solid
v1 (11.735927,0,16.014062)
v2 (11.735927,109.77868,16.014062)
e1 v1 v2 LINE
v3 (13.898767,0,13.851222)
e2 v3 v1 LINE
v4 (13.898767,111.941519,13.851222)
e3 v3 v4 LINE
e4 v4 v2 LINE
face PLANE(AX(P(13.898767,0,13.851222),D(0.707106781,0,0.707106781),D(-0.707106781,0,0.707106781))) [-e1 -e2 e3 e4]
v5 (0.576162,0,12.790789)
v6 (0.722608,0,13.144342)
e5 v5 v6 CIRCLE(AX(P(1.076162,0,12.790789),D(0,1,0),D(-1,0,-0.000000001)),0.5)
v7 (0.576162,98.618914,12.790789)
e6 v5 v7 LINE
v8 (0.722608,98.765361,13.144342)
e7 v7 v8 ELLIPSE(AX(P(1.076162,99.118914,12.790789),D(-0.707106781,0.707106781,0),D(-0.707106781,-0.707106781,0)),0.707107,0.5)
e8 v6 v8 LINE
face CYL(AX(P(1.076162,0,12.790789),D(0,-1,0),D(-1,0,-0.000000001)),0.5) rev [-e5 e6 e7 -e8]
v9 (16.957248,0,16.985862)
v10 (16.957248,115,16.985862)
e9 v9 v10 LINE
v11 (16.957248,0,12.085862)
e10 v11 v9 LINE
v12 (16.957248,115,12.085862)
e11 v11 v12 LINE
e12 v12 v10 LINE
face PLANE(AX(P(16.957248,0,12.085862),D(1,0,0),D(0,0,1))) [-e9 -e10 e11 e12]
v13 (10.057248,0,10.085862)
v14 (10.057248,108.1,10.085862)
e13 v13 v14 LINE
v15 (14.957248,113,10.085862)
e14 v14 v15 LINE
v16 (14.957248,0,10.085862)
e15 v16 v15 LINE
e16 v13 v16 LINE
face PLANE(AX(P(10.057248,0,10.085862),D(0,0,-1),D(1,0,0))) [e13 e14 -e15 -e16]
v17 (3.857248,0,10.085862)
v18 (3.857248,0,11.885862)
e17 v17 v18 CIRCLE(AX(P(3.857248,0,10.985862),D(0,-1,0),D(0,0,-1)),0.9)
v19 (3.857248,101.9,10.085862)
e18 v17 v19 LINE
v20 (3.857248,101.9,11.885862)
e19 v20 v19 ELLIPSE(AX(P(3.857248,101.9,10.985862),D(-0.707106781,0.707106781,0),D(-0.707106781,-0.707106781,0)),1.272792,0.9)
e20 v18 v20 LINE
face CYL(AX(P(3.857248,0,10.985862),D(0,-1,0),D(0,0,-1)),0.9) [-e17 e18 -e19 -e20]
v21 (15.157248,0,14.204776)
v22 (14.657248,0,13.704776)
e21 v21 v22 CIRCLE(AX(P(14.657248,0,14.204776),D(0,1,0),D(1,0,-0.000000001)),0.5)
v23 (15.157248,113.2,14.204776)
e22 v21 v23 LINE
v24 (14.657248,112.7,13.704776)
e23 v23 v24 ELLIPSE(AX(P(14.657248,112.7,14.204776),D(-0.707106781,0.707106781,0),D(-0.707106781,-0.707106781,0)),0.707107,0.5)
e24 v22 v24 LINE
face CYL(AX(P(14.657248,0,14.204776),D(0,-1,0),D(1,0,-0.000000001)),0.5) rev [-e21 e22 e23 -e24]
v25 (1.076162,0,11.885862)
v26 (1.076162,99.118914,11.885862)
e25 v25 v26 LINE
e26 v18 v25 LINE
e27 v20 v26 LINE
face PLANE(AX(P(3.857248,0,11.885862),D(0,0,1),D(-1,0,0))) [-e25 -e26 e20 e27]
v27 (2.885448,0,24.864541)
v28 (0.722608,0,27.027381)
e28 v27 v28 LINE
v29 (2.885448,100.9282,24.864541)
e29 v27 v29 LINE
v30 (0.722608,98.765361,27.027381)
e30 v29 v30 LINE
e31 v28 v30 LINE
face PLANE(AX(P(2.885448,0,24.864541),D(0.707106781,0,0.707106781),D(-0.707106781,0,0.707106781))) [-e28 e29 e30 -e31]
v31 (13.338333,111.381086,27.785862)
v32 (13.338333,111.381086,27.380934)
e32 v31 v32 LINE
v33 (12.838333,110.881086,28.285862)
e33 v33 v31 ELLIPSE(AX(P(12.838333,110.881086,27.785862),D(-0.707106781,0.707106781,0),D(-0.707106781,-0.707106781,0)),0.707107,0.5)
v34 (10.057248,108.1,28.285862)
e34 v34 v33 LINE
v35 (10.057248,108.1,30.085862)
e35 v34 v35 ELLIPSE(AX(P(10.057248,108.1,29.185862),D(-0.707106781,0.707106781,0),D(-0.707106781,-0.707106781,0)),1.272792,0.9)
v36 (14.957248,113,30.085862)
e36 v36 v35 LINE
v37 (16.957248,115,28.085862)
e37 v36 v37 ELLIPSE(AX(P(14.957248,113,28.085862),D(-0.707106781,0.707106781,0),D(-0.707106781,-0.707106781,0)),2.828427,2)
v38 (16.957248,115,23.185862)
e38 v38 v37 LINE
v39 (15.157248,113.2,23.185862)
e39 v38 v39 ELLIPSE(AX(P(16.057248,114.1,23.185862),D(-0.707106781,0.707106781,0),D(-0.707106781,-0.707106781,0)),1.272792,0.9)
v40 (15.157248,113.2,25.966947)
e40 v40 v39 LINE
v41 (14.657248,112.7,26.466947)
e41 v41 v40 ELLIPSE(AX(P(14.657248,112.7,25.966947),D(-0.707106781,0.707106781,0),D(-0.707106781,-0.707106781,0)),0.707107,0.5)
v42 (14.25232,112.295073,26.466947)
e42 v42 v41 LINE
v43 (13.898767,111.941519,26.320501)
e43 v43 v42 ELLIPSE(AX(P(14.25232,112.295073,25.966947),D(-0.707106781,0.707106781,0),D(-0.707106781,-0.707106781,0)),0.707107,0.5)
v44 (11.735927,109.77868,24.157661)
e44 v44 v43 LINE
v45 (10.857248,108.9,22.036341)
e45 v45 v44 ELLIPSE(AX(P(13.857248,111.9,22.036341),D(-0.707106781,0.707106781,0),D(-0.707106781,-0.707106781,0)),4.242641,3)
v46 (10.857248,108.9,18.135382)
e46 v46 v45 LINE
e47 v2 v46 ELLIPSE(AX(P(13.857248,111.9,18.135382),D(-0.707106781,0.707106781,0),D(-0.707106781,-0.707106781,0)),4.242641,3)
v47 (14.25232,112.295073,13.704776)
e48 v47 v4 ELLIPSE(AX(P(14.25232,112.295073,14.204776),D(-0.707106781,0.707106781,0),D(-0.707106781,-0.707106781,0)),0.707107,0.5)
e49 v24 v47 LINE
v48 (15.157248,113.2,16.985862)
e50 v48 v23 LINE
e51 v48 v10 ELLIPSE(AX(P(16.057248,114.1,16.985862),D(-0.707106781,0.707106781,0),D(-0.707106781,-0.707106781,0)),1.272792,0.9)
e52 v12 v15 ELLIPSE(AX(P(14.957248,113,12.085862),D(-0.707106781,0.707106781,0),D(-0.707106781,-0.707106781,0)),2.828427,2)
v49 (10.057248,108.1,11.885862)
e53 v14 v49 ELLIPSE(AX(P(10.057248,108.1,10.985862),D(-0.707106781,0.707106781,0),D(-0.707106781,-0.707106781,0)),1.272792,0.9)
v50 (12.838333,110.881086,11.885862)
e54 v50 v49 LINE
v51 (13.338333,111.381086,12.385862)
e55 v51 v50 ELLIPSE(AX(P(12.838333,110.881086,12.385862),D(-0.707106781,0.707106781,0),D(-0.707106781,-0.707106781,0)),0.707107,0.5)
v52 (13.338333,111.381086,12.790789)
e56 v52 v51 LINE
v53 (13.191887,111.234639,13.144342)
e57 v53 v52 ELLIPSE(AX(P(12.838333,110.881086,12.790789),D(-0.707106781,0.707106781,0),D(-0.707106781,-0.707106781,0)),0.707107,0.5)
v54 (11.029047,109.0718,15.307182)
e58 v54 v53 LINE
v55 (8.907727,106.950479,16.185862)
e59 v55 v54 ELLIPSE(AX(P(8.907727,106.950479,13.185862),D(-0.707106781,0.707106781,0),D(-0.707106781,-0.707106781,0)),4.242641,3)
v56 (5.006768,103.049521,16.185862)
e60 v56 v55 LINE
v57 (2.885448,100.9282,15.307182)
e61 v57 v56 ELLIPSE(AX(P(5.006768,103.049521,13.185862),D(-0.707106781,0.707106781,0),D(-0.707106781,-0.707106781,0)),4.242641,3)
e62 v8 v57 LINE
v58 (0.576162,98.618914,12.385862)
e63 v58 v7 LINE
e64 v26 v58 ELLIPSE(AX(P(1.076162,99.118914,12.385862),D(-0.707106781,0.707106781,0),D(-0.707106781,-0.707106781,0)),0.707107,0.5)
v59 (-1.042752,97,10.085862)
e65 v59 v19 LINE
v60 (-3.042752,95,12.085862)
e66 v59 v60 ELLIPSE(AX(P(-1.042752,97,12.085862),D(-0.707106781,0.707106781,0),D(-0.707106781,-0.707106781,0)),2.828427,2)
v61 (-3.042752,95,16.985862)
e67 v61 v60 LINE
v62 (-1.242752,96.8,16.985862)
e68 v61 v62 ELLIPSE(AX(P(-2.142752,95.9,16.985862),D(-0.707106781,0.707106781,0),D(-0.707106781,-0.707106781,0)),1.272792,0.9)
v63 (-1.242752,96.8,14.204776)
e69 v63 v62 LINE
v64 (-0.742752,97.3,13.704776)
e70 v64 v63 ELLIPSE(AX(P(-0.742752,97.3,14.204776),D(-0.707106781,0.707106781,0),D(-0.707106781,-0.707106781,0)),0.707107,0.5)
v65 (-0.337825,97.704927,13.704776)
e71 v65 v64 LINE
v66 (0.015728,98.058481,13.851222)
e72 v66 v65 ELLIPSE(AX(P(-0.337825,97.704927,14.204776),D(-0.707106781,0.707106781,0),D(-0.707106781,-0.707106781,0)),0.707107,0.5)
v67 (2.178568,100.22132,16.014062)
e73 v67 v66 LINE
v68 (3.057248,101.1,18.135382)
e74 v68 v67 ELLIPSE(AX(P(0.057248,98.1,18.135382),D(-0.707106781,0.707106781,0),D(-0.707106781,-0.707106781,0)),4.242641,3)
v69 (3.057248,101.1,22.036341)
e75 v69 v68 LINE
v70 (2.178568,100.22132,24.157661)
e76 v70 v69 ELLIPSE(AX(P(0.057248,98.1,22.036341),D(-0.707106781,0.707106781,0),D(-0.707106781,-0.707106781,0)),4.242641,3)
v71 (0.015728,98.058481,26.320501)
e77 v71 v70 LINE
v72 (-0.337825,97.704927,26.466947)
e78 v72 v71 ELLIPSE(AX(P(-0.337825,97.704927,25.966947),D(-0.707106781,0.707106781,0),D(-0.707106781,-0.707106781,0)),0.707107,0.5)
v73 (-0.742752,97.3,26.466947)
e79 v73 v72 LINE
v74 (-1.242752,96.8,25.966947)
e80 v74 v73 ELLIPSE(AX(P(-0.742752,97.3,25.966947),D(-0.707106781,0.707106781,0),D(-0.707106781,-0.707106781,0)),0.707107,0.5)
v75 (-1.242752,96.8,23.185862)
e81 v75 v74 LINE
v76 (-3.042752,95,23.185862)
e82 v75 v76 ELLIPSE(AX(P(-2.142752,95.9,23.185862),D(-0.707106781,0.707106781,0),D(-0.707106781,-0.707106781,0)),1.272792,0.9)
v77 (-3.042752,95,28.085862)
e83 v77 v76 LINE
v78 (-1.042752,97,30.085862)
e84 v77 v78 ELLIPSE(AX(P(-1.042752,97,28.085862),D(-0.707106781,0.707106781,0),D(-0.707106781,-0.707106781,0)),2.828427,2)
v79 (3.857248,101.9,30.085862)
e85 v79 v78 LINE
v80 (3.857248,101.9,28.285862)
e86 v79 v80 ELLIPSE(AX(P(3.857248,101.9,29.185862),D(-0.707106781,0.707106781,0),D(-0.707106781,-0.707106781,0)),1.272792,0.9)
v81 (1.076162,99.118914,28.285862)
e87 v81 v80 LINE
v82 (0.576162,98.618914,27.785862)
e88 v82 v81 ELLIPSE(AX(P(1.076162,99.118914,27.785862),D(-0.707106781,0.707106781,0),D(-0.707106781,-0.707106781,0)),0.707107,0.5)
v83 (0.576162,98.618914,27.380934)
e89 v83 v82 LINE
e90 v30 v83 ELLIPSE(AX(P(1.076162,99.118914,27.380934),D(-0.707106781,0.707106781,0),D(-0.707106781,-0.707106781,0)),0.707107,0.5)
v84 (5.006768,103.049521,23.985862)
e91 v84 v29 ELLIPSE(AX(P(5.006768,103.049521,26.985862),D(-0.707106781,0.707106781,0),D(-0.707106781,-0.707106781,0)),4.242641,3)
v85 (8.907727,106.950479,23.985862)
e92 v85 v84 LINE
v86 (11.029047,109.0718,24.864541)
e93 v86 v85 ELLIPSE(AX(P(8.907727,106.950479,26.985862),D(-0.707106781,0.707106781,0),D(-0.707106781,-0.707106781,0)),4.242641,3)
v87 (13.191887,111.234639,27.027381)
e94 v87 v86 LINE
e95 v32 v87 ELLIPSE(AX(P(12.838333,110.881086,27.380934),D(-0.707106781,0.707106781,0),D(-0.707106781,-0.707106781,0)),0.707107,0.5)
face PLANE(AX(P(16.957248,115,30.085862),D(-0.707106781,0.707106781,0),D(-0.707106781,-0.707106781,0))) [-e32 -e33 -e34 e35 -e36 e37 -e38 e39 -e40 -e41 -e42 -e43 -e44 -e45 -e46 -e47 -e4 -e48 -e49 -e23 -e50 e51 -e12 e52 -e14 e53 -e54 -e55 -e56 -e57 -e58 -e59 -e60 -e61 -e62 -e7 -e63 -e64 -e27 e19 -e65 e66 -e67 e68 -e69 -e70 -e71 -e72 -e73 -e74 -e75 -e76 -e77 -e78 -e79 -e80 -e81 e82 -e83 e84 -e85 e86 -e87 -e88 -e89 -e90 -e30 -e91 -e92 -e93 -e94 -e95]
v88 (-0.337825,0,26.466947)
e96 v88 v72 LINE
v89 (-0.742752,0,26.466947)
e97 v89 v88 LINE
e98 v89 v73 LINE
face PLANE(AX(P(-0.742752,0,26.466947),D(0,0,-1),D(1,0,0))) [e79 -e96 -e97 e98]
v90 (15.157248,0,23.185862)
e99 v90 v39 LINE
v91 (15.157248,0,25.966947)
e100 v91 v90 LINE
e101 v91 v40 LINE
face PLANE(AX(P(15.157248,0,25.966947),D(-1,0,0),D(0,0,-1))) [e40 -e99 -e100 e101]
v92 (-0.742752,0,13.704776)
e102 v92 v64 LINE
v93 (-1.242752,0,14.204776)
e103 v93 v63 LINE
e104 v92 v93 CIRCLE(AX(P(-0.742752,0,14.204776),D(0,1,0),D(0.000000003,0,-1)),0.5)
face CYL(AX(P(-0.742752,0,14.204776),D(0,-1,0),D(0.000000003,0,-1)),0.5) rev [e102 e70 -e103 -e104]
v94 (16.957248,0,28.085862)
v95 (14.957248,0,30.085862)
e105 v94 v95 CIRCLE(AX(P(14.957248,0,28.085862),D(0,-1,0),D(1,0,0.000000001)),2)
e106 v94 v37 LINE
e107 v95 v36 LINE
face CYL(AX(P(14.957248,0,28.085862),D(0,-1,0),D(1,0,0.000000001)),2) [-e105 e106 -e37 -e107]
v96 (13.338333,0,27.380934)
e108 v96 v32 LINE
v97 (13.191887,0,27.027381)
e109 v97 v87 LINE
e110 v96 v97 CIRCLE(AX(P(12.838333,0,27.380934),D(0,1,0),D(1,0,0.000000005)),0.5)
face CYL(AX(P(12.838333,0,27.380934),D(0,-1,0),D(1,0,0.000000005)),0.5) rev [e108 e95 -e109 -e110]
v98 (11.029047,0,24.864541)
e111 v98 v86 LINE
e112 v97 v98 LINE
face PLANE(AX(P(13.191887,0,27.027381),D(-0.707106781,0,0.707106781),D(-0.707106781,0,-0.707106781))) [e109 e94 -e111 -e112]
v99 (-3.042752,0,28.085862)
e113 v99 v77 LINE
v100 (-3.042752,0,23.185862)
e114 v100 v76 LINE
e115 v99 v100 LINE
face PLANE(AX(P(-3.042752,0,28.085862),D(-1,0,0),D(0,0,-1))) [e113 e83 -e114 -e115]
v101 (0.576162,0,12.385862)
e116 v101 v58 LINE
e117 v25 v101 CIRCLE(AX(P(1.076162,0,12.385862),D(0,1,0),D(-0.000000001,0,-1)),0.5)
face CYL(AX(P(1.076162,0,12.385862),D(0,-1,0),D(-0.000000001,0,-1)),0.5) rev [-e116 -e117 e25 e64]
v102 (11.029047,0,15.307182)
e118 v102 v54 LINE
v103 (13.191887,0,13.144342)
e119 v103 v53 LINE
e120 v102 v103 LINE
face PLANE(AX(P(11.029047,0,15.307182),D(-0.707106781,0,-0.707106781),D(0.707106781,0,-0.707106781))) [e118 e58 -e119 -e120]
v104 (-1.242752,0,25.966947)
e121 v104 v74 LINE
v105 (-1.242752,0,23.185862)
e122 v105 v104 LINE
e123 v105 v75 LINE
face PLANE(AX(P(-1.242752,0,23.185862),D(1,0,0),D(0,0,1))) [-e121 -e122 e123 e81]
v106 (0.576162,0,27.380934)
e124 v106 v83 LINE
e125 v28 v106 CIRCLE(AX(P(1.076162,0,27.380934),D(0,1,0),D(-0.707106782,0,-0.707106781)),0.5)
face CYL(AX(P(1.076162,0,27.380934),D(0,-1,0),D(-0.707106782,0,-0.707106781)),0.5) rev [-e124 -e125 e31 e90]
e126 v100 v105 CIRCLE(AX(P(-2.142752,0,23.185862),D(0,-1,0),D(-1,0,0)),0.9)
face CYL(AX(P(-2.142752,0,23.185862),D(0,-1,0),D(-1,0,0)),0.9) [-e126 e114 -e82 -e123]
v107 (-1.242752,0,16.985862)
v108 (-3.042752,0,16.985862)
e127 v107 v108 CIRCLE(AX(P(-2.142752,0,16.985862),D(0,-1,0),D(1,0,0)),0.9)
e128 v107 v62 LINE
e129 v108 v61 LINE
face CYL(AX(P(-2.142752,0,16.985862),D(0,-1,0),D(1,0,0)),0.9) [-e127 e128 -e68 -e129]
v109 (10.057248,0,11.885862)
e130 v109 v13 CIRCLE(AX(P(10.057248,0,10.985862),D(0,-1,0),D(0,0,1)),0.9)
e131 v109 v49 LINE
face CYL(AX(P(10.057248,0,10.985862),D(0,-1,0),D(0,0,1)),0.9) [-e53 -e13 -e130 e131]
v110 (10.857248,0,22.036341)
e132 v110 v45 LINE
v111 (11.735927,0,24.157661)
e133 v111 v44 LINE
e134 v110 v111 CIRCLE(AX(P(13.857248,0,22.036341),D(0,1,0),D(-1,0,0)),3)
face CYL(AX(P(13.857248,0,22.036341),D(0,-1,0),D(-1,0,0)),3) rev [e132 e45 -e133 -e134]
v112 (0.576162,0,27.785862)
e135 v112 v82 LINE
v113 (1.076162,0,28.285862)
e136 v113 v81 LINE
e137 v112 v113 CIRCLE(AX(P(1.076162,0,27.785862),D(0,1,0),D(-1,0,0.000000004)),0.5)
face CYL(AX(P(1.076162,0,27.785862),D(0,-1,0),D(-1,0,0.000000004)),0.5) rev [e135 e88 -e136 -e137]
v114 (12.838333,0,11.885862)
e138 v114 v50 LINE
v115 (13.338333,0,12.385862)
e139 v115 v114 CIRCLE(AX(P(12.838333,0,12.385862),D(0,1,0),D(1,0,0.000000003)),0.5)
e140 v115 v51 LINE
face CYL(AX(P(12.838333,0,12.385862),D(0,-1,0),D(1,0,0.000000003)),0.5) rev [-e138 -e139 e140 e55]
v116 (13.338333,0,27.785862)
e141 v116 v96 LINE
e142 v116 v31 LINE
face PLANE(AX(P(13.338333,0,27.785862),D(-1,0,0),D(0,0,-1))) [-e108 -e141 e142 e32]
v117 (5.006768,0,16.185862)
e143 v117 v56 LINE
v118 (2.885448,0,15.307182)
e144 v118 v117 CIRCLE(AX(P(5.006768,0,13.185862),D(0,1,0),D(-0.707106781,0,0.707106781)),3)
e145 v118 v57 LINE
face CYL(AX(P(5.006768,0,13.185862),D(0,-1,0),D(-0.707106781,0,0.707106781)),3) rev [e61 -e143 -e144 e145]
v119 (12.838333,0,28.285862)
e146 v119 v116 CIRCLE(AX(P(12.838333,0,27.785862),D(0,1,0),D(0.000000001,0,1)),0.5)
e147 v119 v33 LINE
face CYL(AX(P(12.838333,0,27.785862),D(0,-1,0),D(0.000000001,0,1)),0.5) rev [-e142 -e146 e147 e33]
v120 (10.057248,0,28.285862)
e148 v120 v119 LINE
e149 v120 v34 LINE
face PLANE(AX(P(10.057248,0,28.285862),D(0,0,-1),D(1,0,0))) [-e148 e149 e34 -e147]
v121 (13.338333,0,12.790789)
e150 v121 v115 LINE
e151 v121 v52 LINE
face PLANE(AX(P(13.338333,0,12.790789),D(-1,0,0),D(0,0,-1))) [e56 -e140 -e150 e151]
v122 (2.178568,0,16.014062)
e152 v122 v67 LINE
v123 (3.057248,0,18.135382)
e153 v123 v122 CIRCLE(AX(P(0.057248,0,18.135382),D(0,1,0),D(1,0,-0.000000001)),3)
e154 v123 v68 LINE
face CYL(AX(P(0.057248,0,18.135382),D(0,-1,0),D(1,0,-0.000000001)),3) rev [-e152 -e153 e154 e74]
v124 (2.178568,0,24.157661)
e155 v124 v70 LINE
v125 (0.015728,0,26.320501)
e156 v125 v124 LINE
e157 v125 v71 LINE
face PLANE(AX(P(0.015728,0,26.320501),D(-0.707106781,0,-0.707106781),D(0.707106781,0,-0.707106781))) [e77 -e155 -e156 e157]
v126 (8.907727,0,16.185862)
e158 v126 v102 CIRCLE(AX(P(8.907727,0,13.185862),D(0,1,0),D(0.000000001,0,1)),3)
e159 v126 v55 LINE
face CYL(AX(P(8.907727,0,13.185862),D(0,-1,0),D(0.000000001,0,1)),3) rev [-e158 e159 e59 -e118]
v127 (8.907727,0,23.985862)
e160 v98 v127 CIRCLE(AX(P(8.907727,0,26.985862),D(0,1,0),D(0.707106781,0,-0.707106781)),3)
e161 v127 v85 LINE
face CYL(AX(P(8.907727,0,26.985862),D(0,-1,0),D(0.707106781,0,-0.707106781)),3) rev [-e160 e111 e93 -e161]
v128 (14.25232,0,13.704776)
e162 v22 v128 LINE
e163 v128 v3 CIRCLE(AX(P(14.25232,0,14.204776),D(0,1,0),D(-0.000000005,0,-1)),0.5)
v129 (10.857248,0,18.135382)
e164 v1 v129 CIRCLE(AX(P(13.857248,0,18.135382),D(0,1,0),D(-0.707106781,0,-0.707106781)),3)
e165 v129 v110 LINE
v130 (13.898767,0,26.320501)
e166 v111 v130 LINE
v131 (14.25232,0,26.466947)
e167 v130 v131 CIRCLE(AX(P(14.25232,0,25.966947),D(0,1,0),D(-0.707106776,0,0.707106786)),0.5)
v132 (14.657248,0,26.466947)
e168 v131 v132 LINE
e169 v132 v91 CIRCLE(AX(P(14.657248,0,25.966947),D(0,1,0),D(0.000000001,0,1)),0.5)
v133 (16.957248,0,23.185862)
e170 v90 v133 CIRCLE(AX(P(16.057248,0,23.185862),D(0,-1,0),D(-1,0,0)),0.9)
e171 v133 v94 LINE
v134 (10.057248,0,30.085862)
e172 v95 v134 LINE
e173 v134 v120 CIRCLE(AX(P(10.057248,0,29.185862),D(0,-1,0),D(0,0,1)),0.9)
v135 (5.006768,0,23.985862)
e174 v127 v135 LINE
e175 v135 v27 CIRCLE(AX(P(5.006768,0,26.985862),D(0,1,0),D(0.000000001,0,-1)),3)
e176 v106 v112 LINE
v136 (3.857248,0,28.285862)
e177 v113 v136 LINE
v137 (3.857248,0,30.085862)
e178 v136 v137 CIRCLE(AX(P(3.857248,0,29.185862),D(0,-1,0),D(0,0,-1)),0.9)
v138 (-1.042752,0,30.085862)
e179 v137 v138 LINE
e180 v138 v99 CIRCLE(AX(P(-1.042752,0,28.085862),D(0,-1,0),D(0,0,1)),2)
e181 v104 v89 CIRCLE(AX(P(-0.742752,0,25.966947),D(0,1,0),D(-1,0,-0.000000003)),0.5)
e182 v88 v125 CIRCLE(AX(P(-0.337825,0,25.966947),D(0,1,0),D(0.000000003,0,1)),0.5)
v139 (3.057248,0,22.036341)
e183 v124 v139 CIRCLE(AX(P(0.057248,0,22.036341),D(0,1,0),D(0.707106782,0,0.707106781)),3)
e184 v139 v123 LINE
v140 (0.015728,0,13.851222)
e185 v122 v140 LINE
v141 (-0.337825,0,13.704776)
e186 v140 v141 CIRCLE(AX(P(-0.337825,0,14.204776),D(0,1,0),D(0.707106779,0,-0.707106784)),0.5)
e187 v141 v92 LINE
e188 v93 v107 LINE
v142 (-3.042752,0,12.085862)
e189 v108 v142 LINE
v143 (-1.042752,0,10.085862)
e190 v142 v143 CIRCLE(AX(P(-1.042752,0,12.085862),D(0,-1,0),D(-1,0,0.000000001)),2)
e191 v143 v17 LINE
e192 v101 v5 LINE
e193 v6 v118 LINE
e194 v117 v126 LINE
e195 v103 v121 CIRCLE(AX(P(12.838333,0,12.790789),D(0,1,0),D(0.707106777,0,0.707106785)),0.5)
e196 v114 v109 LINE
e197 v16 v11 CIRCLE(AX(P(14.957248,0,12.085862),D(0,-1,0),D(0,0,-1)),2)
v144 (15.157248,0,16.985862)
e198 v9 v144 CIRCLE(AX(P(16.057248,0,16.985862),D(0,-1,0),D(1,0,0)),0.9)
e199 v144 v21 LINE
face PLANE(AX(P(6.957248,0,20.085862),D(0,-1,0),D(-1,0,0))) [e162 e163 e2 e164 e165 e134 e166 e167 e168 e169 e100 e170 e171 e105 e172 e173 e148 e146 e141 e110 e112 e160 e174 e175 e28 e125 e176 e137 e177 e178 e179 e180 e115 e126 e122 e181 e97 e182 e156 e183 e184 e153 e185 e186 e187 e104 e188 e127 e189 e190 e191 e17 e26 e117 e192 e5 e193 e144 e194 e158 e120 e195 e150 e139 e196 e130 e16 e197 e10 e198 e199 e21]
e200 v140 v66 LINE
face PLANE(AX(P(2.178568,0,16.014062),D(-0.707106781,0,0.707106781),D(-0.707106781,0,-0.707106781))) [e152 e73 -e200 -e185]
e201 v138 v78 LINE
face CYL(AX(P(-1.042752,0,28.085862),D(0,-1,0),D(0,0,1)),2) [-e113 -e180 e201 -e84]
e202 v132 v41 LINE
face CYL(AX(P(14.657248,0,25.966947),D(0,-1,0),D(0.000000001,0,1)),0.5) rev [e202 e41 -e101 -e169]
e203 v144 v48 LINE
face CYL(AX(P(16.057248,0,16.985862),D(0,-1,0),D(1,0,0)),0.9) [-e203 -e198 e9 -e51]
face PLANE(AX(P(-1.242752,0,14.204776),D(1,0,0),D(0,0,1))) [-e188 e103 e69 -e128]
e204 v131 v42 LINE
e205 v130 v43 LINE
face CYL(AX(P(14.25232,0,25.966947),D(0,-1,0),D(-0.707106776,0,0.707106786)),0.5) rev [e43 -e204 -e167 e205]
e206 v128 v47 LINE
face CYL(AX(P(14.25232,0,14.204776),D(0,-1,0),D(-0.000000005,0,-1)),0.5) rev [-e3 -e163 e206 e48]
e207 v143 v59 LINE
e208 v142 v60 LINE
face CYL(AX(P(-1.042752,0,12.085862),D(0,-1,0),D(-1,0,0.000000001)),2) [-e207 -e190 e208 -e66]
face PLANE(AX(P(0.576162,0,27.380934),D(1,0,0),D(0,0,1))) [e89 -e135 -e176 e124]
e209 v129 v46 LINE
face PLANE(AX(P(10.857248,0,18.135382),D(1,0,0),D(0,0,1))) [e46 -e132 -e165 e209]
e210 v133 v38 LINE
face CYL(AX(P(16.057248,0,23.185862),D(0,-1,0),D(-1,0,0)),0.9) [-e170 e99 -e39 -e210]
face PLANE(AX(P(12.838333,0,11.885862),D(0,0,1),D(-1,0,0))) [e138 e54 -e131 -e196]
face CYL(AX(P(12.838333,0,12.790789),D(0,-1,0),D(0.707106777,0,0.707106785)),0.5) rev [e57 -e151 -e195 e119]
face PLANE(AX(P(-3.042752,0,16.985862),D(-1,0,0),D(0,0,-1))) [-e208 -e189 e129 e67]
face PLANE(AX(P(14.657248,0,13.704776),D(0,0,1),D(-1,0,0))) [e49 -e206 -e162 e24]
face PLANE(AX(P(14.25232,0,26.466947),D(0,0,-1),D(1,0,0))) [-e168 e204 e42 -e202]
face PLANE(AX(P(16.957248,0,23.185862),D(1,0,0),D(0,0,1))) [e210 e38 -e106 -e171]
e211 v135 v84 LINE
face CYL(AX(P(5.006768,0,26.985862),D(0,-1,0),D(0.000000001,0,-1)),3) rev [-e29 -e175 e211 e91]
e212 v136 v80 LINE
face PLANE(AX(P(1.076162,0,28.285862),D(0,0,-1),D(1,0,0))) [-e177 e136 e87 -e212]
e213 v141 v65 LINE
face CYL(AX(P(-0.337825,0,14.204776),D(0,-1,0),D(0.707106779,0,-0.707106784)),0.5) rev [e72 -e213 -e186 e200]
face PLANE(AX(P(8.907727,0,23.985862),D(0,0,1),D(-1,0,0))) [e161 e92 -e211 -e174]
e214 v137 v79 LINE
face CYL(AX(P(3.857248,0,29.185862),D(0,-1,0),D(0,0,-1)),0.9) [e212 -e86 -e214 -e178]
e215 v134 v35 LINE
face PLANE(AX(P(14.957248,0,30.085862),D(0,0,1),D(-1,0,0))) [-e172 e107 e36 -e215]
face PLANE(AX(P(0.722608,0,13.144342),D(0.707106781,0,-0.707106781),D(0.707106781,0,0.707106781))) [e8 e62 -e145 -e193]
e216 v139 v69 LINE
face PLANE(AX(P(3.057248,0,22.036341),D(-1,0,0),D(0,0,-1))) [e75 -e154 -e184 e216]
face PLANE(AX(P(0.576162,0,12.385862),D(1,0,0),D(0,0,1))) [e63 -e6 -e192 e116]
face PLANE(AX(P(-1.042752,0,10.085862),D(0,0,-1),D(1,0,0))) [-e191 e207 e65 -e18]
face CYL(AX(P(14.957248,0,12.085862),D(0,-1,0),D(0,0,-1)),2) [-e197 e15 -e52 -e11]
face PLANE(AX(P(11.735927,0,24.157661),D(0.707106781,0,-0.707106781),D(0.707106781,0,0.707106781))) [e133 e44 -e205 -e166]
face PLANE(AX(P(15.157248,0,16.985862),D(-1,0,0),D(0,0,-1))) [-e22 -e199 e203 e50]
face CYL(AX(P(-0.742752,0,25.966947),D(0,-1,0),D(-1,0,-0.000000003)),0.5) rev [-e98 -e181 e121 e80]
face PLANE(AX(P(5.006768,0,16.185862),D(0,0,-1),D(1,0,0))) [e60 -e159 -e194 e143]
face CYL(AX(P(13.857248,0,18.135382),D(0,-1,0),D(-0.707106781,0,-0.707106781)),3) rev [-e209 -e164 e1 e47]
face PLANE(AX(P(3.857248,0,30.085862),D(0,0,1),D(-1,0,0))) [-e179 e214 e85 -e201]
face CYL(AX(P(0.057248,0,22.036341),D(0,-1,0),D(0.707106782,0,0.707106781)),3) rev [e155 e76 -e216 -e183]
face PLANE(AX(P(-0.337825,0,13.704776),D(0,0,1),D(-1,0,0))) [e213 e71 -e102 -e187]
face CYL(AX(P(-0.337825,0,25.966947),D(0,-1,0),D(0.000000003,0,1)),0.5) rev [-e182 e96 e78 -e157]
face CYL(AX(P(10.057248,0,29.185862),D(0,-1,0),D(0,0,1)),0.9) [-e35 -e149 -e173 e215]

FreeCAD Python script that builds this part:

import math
import FreeCAD as App
import Part
import Sketcher
from FreeCAD import Vector
Q = App.Units.Quantity

doc = App.newDocument("Part")
body = doc.addObject("PartDesign::Body", "Body")

# Sketch on XZ plane
sketch1 = body.newObject("Sketcher::SketchObject", "Sketch")
sketch1.AttachmentSupport = (doc.getObject("XZ_Plane"), [""])
sketch1.MapMode = "FlatFace"
sketch1.addGeometry(Part.LineSegment(Vector(3.857248, 10.085862, 0), Vector(-1.042752, 10.085862, 0)), False)
sketch1.addGeometry(Part.ArcOfCircle(Part.Circle(Vector(-1.042752, 12.085862, 0), Vector(0, 0, 1), 2), math.radians(180), math.radians(270)), False)
sketch1.addGeometry(Part.LineSegment(Vector(-3.042752, 12.085862, 0), Vector(-3.042752, 16.985862, 0)), False)
sketch1.addGeometry(Part.ArcOfCircle(Part.Circle(Vector(-2.142752, 16.985862, 0), Vector(0, 0, 1), 0.9), math.radians(0), math.radians(180)), False)
sketch1.addGeometry(Part.LineSegment(Vector(-1.242752, 16.985862, 0), Vector(-1.242752, 14.204776, 0)), False)
sketch1.addGeometry(Part.ArcOfCircle(Part.Circle(Vector(-0.742752, 14.204776, 0), Vector(0, 0, 1), 0.5), math.radians(180), math.radians(270)), False)
sketch1.addGeometry(Part.LineSegment(Vector(-0.742752, 13.704776, 0), Vector(-0.337825, 13.704776, 0)), False)
sketch1.addGeometry(Part.ArcOfCircle(Part.Circle(Vector(-0.337825, 14.204776, 0), Vector(0, 0, 1), 0.5), math.radians(-90), math.radians(-45)), False)
sketch1.addGeometry(Part.LineSegment(Vector(0.015728, 13.851222, 0), Vector(2.178568, 16.014062, 0)), False)
sketch1.addGeometry(Part.ArcOfCircle(Part.Circle(Vector(0.057248, 18.135382, 0), Vector(0, 0, 1), 3), math.radians(-45), math.radians(0)), False)
sketch1.addGeometry(Part.LineSegment(Vector(3.057248, 18.135382, 0), Vector(3.057248, 22.036341, 0)), False)
sketch1.addGeometry(Part.ArcOfCircle(Part.Circle(Vector(0.057248, 22.036341, 0), Vector(0, 0, 1), 3), math.radians(0), math.radians(45)), False)
sketch1.addGeometry(Part.LineSegment(Vector(2.178568, 24.157661, 0), Vector(0.015728, 26.320501, 0)), False)
sketch1.addGeometry(Part.ArcOfCircle(Part.Circle(Vector(-0.337825, 25.966947, 0), Vector(0, 0, 1), 0.5), math.radians(45), math.radians(90)), False)
sketch1.addGeometry(Part.LineSegment(Vector(-0.337825, 26.466947, 0), Vector(-0.742752, 26.466947, 0)), False)
sketch1.addGeometry(Part.ArcOfCircle(Part.Circle(Vector(-0.742752, 25.966947, 0), Vector(0, 0, 1), 0.5), math.radians(90), math.radians(180)), False)
sketch1.addGeometry(Part.LineSegment(Vector(-1.242752, 25.966947, 0), Vector(-1.242752, 23.185862, 0)), False)
sketch1.addGeometry(Part.ArcOfCircle(Part.Circle(Vector(-2.142752, 23.185862, 0), Vector(0, 0, 1), 0.9), math.radians(180), math.radians(360)), False)
sketch1.addGeometry(Part.LineSegment(Vector(-3.042752, 23.185862, 0), Vector(-3.042752, 28.085862, 0)), False)
sketch1.addGeometry(Part.ArcOfCircle(Part.Circle(Vector(-1.042752, 28.085862, 0), Vector(0, 0, 1), 2), math.radians(90), math.radians(180)), False)
sketch1.addGeometry(Part.LineSegment(Vector(-1.042752, 30.085862, 0), Vector(3.857248, 30.085862, 0)), False)
sketch1.addGeometry(Part.ArcOfCircle(Part.Circle(Vector(3.857248, 29.185862, 0), Vector(0, 0, 1), 0.9), math.radians(-90), math.radians(90)), False)
sketch1.addGeometry(Part.LineSegment(Vector(3.857248, 28.285862, 0), Vector(1.076162, 28.285862, 0)), False)
sketch1.addGeometry(Part.ArcOfCircle(Part.Circle(Vector(1.076162, 27.785862, 0), Vector(0, 0, 1), 0.5), math.radians(90), math.radians(180)), False)
sketch1.addGeometry(Part.LineSegment(Vector(0.576162, 27.785862, 0), Vector(0.576162, 27.380934, 0)), False)
sketch1.addGeometry(Part.ArcOfCircle(Part.Circle(Vector(1.076162, 27.380934, 0), Vector(0, 0, 1), 0.5), math.radians(-180), math.radians(-135)), False)
sketch1.addGeometry(Part.LineSegment(Vector(0.722608, 27.027381, 0), Vector(2.885448, 24.864541, 0)), False)
sketch1.addGeometry(Part.ArcOfCircle(Part.Circle(Vector(5.006768, 26.985862, 0), Vector(0, 0, 1), 3), math.radians(-135), math.radians(-90)), False)
sketch1.addGeometry(Part.LineSegment(Vector(5.006768, 23.985862, 0), Vector(8.907727, 23.985862, 0)), False)
sketch1.addGeometry(Part.ArcOfCircle(Part.Circle(Vector(8.907727, 26.985862, 0), Vector(0, 0, 1), 3), math.radians(-90), math.radians(-45)), False)
sketch1.addGeometry(Part.LineSegment(Vector(11.029047, 24.864541, 0), Vector(13.191887, 27.027381, 0)), False)
sketch1.addGeometry(Part.ArcOfCircle(Part.Circle(Vector(12.838333, 27.380934, 0), Vector(0, 0, 1), 0.5), math.radians(-45), math.radians(0)), False)
sketch1.addGeometry(Part.LineSegment(Vector(13.338333, 27.380934, 0), Vector(13.338333, 27.785862, 0)), False)
sketch1.addGeometry(Part.ArcOfCircle(Part.Circle(Vector(12.838333, 27.785862, 0), Vector(0, 0, 1), 0.5), math.radians(0), math.radians(90)), False)
sketch1.addGeometry(Part.LineSegment(Vector(12.838333, 28.285862, 0), Vector(10.057248, 28.285862, 0)), False)
sketch1.addGeometry(Part.ArcOfCircle(Part.Circle(Vector(10.057248, 29.185862, 0), Vector(0, 0, 1), 0.9), math.radians(90), math.radians(270)), False)
sketch1.addGeometry(Part.LineSegment(Vector(10.057248, 30.085862, 0), Vector(14.957248, 30.085862, 0)), False)
sketch1.addGeometry(Part.ArcOfCircle(Part.Circle(Vector(14.957248, 28.085862, 0), Vector(0, 0, 1), 2), math.radians(0), math.radians(90)), False)
sketch1.addGeometry(Part.LineSegment(Vector(16.957248, 28.085862, 0), Vector(16.957248, 23.185862, 0)), False)
sketch1.addGeometry(Part.ArcOfCircle(Part.Circle(Vector(16.057248, 23.185862, 0), Vector(0, 0, 1), 0.9), math.radians(180), math.radians(360)), False)
sketch1.addGeometry(Part.LineSegment(Vector(15.157248, 23.185862, 0), Vector(15.157248, 25.966947, 0)), False)
sketch1.addGeometry(Part.ArcOfCircle(Part.Circle(Vector(14.657248, 25.966947, 0), Vector(0, 0, 1), 0.5), math.radians(0), math.radians(90)), False)
sketch1.addGeometry(Part.LineSegment(Vector(14.657248, 26.466947, 0), Vector(14.25232, 26.466947, 0)), False)
sketch1.addGeometry(Part.ArcOfCircle(Part.Circle(Vector(14.25232, 25.966947, 0), Vector(0, 0, 1), 0.5), math.radians(90), math.radians(135)), False)
sketch1.addGeometry(Part.LineSegment(Vector(13.898767, 26.320501, 0), Vector(11.735927, 24.157661, 0)), False)
sketch1.addGeometry(Part.ArcOfCircle(Part.Circle(Vector(13.857248, 22.036341, 0), Vector(0, 0, 1), 3), math.radians(135), math.radians(180)), False)
sketch1.addGeometry(Part.LineSegment(Vector(10.857248, 22.036341, 0), Vector(10.857248, 18.135382, 0)), False)
sketch1.addGeometry(Part.ArcOfCircle(Part.Circle(Vector(13.857248, 18.135382, 0), Vector(0, 0, 1), 3), math.radians(180), math.radians(225)), False)
sketch1.addGeometry(Part.LineSegment(Vector(11.735927, 16.014062, 0), Vector(13.898767, 13.851222, 0)), False)
sketch1.addGeometry(Part.ArcOfCircle(Part.Circle(Vector(14.25232, 14.204776, 0), Vector(0, 0, 1), 0.5), math.radians(-135), math.radians(-90)), False)
sketch1.addGeometry(Part.LineSegment(Vector(14.25232, 13.704776, 0), Vector(14.657248, 13.704776, 0)), False)
sketch1.addGeometry(Part.ArcOfCircle(Part.Circle(Vector(14.657248, 14.204776, 0), Vector(0, 0, 1), 0.5), math.radians(-90), math.radians(0)), False)
sketch1.addGeometry(Part.LineSegment(Vector(15.157248, 14.204776, 0), Vector(15.157248, 16.985862, 0)), False)
sketch1.addGeometry(Part.ArcOfCircle(Part.Circle(Vector(16.057248, 16.985862, 0), Vector(0, 0, 1), 0.9), math.radians(0), math.radians(180)), False)
sketch1.addGeometry(Part.LineSegment(Vector(16.957248, 16.985862, 0), Vector(16.957248, 12.085862, 0)), False)
sketch1.addGeometry(Part.ArcOfCircle(Part.Circle(Vector(14.957248, 12.085862, 0), Vector(0, 0, 1), 2), math.radians(-90), math.radians(0)), False)
sketch1.addGeometry(Part.LineSegment(Vector(14.957248, 10.085862, 0), Vector(10.057248, 10.085862, 0)), False)
sketch1.addGeometry(Part.ArcOfCircle(Part.Circle(Vector(10.057248, 10.985862, 0), Vector(0, 0, 1), 0.9), math.radians(90), math.radians(270)), False)
sketch1.addGeometry(Part.LineSegment(Vector(10.057248, 11.885862, 0), Vector(12.838333, 11.885862, 0)), False)
sketch1.addGeometry(Part.ArcOfCircle(Part.Circle(Vector(12.838333, 12.385862, 0), Vector(0, 0, 1), 0.5), math.radians(-90), math.radians(0)), False)
sketch1.addGeometry(Part.LineSegment(Vector(13.338333, 12.385862, 0), Vector(13.338333, 12.790789, 0)), False)
sketch1.addGeometry(Part.ArcOfCircle(Part.Circle(Vector(12.838333, 12.790789, 0), Vector(0, 0, 1), 0.5), math.radians(0), math.radians(45)), False)
sketch1.addGeometry(Part.LineSegment(Vector(13.191887, 13.144342, 0), Vector(11.029047, 15.307182, 0)), False)
sketch1.addGeometry(Part.ArcOfCircle(Part.Circle(Vector(8.907727, 13.185862, 0), Vector(0, 0, 1), 3), math.radians(45), math.radians(90)), False)
sketch1.addGeometry(Part.LineSegment(Vector(8.907727, 16.185862, 0), Vector(5.006768, 16.185862, 0)), False)
sketch1.addGeometry(Part.ArcOfCircle(Part.Circle(Vector(5.006768, 13.185862, 0), Vector(0, 0, 1), 3), math.radians(90), math.radians(135)), False)
sketch1.addGeometry(Part.LineSegment(Vector(2.885448, 15.307182, 0), Vector(0.722608, 13.144342, 0)), False)
sketch1.addGeometry(Part.ArcOfCircle(Part.Circle(Vector(1.076162, 12.790789, 0), Vector(0, 0, 1), 0.5), math.radians(135), math.radians(180)), False)
sketch1.addGeometry(Part.LineSegment(Vector(0.576162, 12.790789, 0), Vector(0.576162, 12.385862, 0)), False)
sketch1.addGeometry(Part.ArcOfCircle(Part.Circle(Vector(1.076162, 12.385862, 0), Vector(0, 0, 1), 0.5), math.radians(180), math.radians(270)), False)
sketch1.addGeometry(Part.LineSegment(Vector(1.076162, 11.885862, 0), Vector(3.857248, 11.885862, 0)), False)
sketch1.addGeometry(Part.ArcOfCircle(Part.Circle(Vector(3.857248, 10.985862, 0), Vector(0, 0, 1), 0.9), math.radians(-90), math.radians(90)), False)
sketch1.addConstraint(Sketcher.Constraint("Tangent", 0, 2, 1, 2))
sketch1.addConstraint(Sketcher.Constraint("Tangent", 1, 1, 2, 1))
sketch1.addConstraint(Sketcher.Constraint("Tangent", 2, 2, 3, 2))
sketch1.addConstraint(Sketcher.Constraint("Tangent", 3, 1, 4, 1))
sketch1.addConstraint(Sketcher.Constraint("Tangent", 4, 2, 5, 1))
sketch1.addConstraint(Sketcher.Constraint("Tangent", 5, 2, 6, 1))
sketch1.addConstraint(Sketcher.Constraint("Tangent", 6, 2, 7, 1))
sketch1.addConstraint(Sketcher.Constraint("Tangent", 7, 2, 8, 1))
sketch1.addConstraint(Sketcher.Constraint("Tangent", 8, 2, 9, 1))
sketch1.addConstraint(Sketcher.Constraint("Tangent", 9, 2, 10, 1))
sketch1.addConstraint(Sketcher.Constraint("Tangent", 10, 2, 11, 1))
sketch1.addConstraint(Sketcher.Constraint("Tangent", 11, 2, 12, 1))
sketch1.addConstraint(Sketcher.Constraint("Tangent", 12, 2, 13, 1))
sketch1.addConstraint(Sketcher.Constraint("Tangent", 13, 2, 14, 1))
sketch1.addConstraint(Sketcher.Constraint("Tangent", 14, 2, 15, 1))
sketch1.addConstraint(Sketcher.Constraint("Tangent", 15, 2, 16, 1))
sketch1.addConstraint(Sketcher.Constraint("Tangent", 16, 2, 17, 2))
sketch1.addConstraint(Sketcher.Constraint("Tangent", 17, 1, 18, 1))
sketch1.addConstraint(Sketcher.Constraint("Tangent", 18, 2, 19, 2))
sketch1.addConstraint(Sketcher.Constraint("Tangent", 19, 1, 20, 1))
sketch1.addConstraint(Sketcher.Constraint("Tangent", 20, 2, 21, 2))
sketch1.addConstraint(Sketcher.Constraint("Tangent", 21, 1, 22, 1))
sketch1.addConstraint(Sketcher.Constraint("Tangent", 22, 2, 23, 1))
sketch1.addConstraint(Sketcher.Constraint("Tangent", 23, 2, 24, 1))
sketch1.addConstraint(Sketcher.Constraint("Tangent", 24, 2, 25, 1))
sketch1.addConstraint(Sketcher.Constraint("Tangent", 25, 2, 26, 1))
sketch1.addConstraint(Sketcher.Constraint("Tangent", 26, 2, 27, 1))
sketch1.addConstraint(Sketcher.Constraint("Tangent", 27, 2, 28, 1))
sketch1.addConstraint(Sketcher.Constraint("Tangent", 28, 2, 29, 1))
sketch1.addConstraint(Sketcher.Constraint("Tangent", 29, 2, 30, 1))
sketch1.addConstraint(Sketcher.Constraint("Tangent", 30, 2, 31, 1))
sketch1.addConstraint(Sketcher.Constraint("Tangent", 31, 2, 32, 1))
sketch1.addConstraint(Sketcher.Constraint("Tangent", 32, 2, 33, 1))
sketch1.addConstraint(Sketcher.Constraint("Tangent", 33, 2, 34, 1))
sketch1.addConstraint(Sketcher.Constraint("Tangent", 34, 2, 35, 2))
sketch1.addConstraint(Sketcher.Constraint("Tangent", 35, 1, 36, 1))
sketch1.addConstraint(Sketcher.Constraint("Tangent", 36, 2, 37, 2))
sketch1.addConstraint(Sketcher.Constraint("Tangent", 37, 1, 38, 1))
sketch1.addConstraint(Sketcher.Constraint("Tangent", 38, 2, 39, 2))
sketch1.addConstraint(Sketcher.Constraint("Tangent", 39, 1, 40, 1))
sketch1.addConstraint(Sketcher.Constraint("Tangent", 40, 2, 41, 1))
sketch1.addConstraint(Sketcher.Constraint("Tangent", 41, 2, 42, 1))
sketch1.addConstraint(Sketcher.Constraint("Tangent", 42, 2, 43, 1))
sketch1.addConstraint(Sketcher.Constraint("Tangent", 43, 2, 44, 1))
sketch1.addConstraint(Sketcher.Constraint("Tangent", 44, 2, 45, 1))
sketch1.addConstraint(Sketcher.Constraint("Tangent", 45, 2, 46, 1))
sketch1.addConstraint(Sketcher.Constraint("Tangent", 46, 2, 47, 1))
sketch1.addConstraint(Sketcher.Constraint("Tangent", 47, 2, 48, 1))
sketch1.addConstraint(Sketcher.Constraint("Tangent", 48, 2, 49, 1))
sketch1.addConstraint(Sketcher.Constraint("Tangent", 49, 2, 50, 1))
sketch1.addConstraint(Sketcher.Constraint("Tangent", 50, 2, 51, 1))
sketch1.addConstraint(Sketcher.Constraint("Tangent", 51, 2, 52, 1))
sketch1.addConstraint(Sketcher.Constraint("Tangent", 52, 2, 53, 2))
sketch1.addConstraint(Sketcher.Constraint("Tangent", 53, 1, 54, 1))
sketch1.addConstraint(Sketcher.Constraint("Tangent", 54, 2, 55, 2))
sketch1.addConstraint(Sketcher.Constraint("Tangent", 55, 1, 56, 1))
sketch1.addConstraint(Sketcher.Constraint("Tangent", 56, 2, 57, 2))
sketch1.addConstraint(Sketcher.Constraint("Tangent", 57, 1, 58, 1))
sketch1.addConstraint(Sketcher.Constraint("Tangent", 58, 2, 59, 1))
sketch1.addConstraint(Sketcher.Constraint("Tangent", 59, 2, 60, 1))
sketch1.addConstraint(Sketcher.Constraint("Tangent", 60, 2, 61, 1))
sketch1.addConstraint(Sketcher.Constraint("Tangent", 61, 2, 62, 1))
sketch1.addConstraint(Sketcher.Constraint("Tangent", 62, 2, 63, 1))
sketch1.addConstraint(Sketcher.Constraint("Tangent", 63, 2, 64, 1))
sketch1.addConstraint(Sketcher.Constraint("Tangent", 64, 2, 65, 1))
sketch1.addConstraint(Sketcher.Constraint("Tangent", 65, 2, 66, 1))
sketch1.addConstraint(Sketcher.Constraint("Tangent", 66, 2, 67, 1))
sketch1.addConstraint(Sketcher.Constraint("Tangent", 67, 2, 68, 1))
sketch1.addConstraint(Sketcher.Constraint("Tangent", 68, 2, 69, 1))
sketch1.addConstraint(Sketcher.Constraint("Tangent", 69, 2, 70, 1))
sketch1.addConstraint(Sketcher.Constraint("Tangent", 70, 2, 71, 2))
sketch1.addConstraint(Sketcher.Constraint("Tangent", 71, 1, 0, 1))
sketch1.addConstraint(Sketcher.Constraint("Horizontal", 0))
sketch1.addConstraint(Sketcher.Constraint("Vertical", 2))
sketch1.addConstraint(Sketcher.Constraint("Vertical", 4))
sketch1.addConstraint(Sketcher.Constraint("Horizontal", 6))
sketch1.addConstraint(Sketcher.Constraint("Vertical", 10))
sketch1.addConstraint(Sketcher.Constraint("Horizontal", 14))
sketch1.addConstraint(Sketcher.Constraint("Vertical", 16))
sketch1.addConstraint(Sketcher.Constraint("Vertical", 18))
sketch1.addConstraint(Sketcher.Constraint("Horizontal", 20))
sketch1.addConstraint(Sketcher.Constraint("Horizontal", 22))
sketch1.addConstraint(Sketcher.Constraint("Vertical", 24))
sketch1.addConstraint(Sketcher.Constraint("Horizontal", 28))
sketch1.addConstraint(Sketcher.Constraint("Vertical", 32))
sketch1.addConstraint(Sketcher.Constraint("Horizontal", 34))
sketch1.addConstraint(Sketcher.Constraint("Horizontal", 36))
sketch1.addConstraint(Sketcher.Constraint("Vertical", 38))
sketch1.addConstraint(Sketcher.Constraint("Vertical", 40))
sketch1.addConstraint(Sketcher.Constraint("Horizontal", 42))
sketch1.addConstraint(Sketcher.Constraint("Vertical", 46))
sketch1.addConstraint(Sketcher.Constraint("Horizontal", 50))
sketch1.addConstraint(Sketcher.Constraint("Vertical", 52))
sketch1.addConstraint(Sketcher.Constraint("Vertical", 54))
sketch1.addConstraint(Sketcher.Constraint("Horizontal", 56))
sketch1.addConstraint(Sketcher.Constraint("Horizontal", 58))
sketch1.addConstraint(Sketcher.Constraint("Vertical", 60))
sketch1.addConstraint(Sketcher.Constraint("Horizontal", 64))
sketch1.addConstraint(Sketcher.Constraint("Vertical", 68))
sketch1.addConstraint(Sketcher.Constraint("Horizontal", 70))
sketch1.addConstraint(Sketcher.Constraint("Equal", 5, 7))
sketch1.addConstraint(Sketcher.Constraint("Equal", 9, 11))
sketch1.addConstraint(Sketcher.Constraint("Equal", 7, 13))
sketch1.addConstraint(Sketcher.Constraint("Equal", 13, 15))
sketch1.addConstraint(Sketcher.Constraint("Equal", 3, 17))
sketch1.addConstraint(Sketcher.Constraint("Equal", 1, 19))
sketch1.addConstraint(Sketcher.Constraint("Equal", 17, 21))
sketch1.addConstraint(Sketcher.Constraint("Equal", 15, 23))
sketch1.addConstraint(Sketcher.Constraint("Equal", 23, 25))
sketch1.addConstraint(Sketcher.Constraint("Equal", 11, 27))
sketch1.addConstraint(Sketcher.Constraint("Equal", 27, 29))
sketch1.addConstraint(Sketcher.Constraint("Equal", 25, 31))
sketch1.addConstraint(Sketcher.Constraint("Equal", 31, 33))
sketch1.addConstraint(Sketcher.Constraint("Equal", 21, 35))
sketch1.addConstraint(Sketcher.Constraint("Equal", 19, 37))
sketch1.addConstraint(Sketcher.Constraint("Equal", 35, 39))
sketch1.addConstraint(Sketcher.Constraint("Equal", 33, 41))
sketch1.addConstraint(Sketcher.Constraint("Equal", 41, 43))
sketch1.addConstraint(Sketcher.Constraint("Equal", 29, 45))
sketch1.addConstraint(Sketcher.Constraint("Equal", 45, 47))
sketch1.addConstraint(Sketcher.Constraint("Equal", 43, 49))
sketch1.addConstraint(Sketcher.Constraint("Equal", 49, 51))
sketch1.addConstraint(Sketcher.Constraint("Equal", 39, 53))
sketch1.addConstraint(Sketcher.Constraint("Equal", 37, 55))
sketch1.addConstraint(Sketcher.Constraint("Equal", 53, 57))
sketch1.addConstraint(Sketcher.Constraint("Equal", 51, 59))
sketch1.addConstraint(Sketcher.Constraint("Equal", 59, 61))
sketch1.addConstraint(Sketcher.Constraint("Equal", 47, 63))
sketch1.addConstraint(Sketcher.Constraint("Equal", 63, 65))
sketch1.addConstraint(Sketcher.Constraint("Equal", 61, 67))
sketch1.addConstraint(Sketcher.Constraint("Equal", 67, 69))
sketch1.addConstraint(Sketcher.Constraint("Equal", 57, 71))
sketch1.addConstraint(Sketcher.Constraint("Perpendicular", 8, 12))
sketch1.addConstraint(Sketcher.Constraint("Parallel", 12, 26))
sketch1.addConstraint(Sketcher.Constraint("Perpendicular", 26, 30))
sketch1.addConstraint(Sketcher.Constraint("Parallel", 30, 44))
sketch1.addConstraint(Sketcher.Constraint("Perpendicular", 44, 48))
sketch1.addConstraint(Sketcher.Constraint("Parallel", 48, 62))
sketch1.addConstraint(Sketcher.Constraint("Perpendicular", 62, 66))
sketch1.addConstraint(Sketcher.Constraint("Horizontal", 25, 3, 31, 3))
sketch1.addConstraint(Sketcher.Constraint("Horizontal", 23, 3, 33, 3))
sketch1.addConstraint(Sketcher.Constraint("Horizontal", 17, 3, 39, 3))
sketch1.addConstraint(Sketcher.Constraint("Horizontal", 15, 3, 41, 3))
sketch1.addConstraint(Sketcher.Constraint("Horizontal", 11, 3, 45, 3))
sketch1.addConstraint(Sketcher.Constraint("Horizontal", 9, 3, 47, 3))
sketch1.addConstraint(Sketcher.Constraint("Horizontal", 7, 3, 49, 3))
sketch1.addConstraint(Sketcher.Constraint("Horizontal", 3, 3, 53, 3))
sketch1.addConstraint(Sketcher.Constraint("Horizontal", 1, 3, 55, 3))
sketch1.addConstraint(Sketcher.Constraint("Horizontal", 61, 3, 67, 3))
sketch1.addConstraint(Sketcher.Constraint("Horizontal", 26, 2, 29, 2))
sketch1.addConstraint(Sketcher.Constraint("Vertical", 7, 3, 13, 3))
sketch1.addConstraint(Sketcher.Constraint("Vertical", 5, 3, 15, 3))
sketch1.addConstraint(Sketcher.Constraint("Vertical", 41, 3, 51, 3))
sketch1.addConstraint(Sketcher.Constraint("Vertical", 35, 3, 57, 3))
sketch1.addConstraint(Sketcher.Constraint("Vertical", 33, 3, 59, 3))
sketch1.addConstraint(Sketcher.Constraint("Vertical", 29, 3, 63, 3))
sketch1.addConstraint(Sketcher.Constraint("Vertical", 27, 3, 65, 3))
sketch1.addConstraint(Sketcher.Constraint("Vertical", 21, 3, 71, 3))
sketch1.addConstraint(Sketcher.Constraint("Equal", 22, 34))
sketch1.addConstraint(Sketcher.Constraint("Equal", 20, 36))
sketch1.addConstraint(Sketcher.Constraint("Equal", 14, 42))
sketch1.addConstraint(Sketcher.Constraint("Equal", 56, 2))
sketch1.addConstraint(Sketcher.Constraint("Equal", 70, 4))
sketch1.addConstraint(Sketcher.Constraint("Equal", 64, 10))
sketch1.addConstraint(Sketcher.Constraint("Equal", 4, 16))
sketch1.addConstraint(Sketcher.Constraint("Equal", 2, 18))
sketch1.addConstraint(Sketcher.Constraint("Equal", 50, 24))
sketch1.addConstraint(Sketcher.Constraint("Equal", 32, 60))
sketch1.addConstraint(Sketcher.Constraint("Equal", 12, 26))
sketch1.addConstraint(Sketcher.Constraint("Radius", 1, Q("2 mm")))
sketch1.addConstraint(Sketcher.Constraint("Radius", 9, Q("3 mm")))
sketch1.addConstraint(Sketcher.Constraint("Radius", 3, Q("0.9 mm")))
sketch1.addConstraint(Sketcher.Constraint("Radius", 5, Q("0.5 mm")))
sketch1.addConstraint(Sketcher.Constraint("DistanceX", 0, 2, 0, 1, Q("4.9 mm")))
sketch1.addConstraint(Sketcher.Constraint("DistanceX", 28, 1, 28, 2, Q("3.900958 mm")))
sketch1.addConstraint(Sketcher.Constraint("DistanceY", -1, 1, 12, 2, Q("26.320501 mm")))
sketch1.addConstraint(Sketcher.Constraint("DistanceX", 6, 1, 6, 2, Q("0.404927 mm")))
sketch1.addConstraint(Sketcher.Constraint("DistanceX", 22, 2, 22, 1, Q("2.781086 mm")))
sketch1.addConstraint(Sketcher.Constraint("DistanceY", -1, 1, 1, 3, Q("12.085862 mm")))
sketch1.addConstraint(Sketcher.Constraint("DistanceX", -1, 1, 23, 3, Q("1.076162 mm")))
pad1 = body.newObject("PartDesign::Pad", "Pad")
pad1.Profile = sketch1
pad1.Length = 115
pad1.Reversed = True

# Sketch on XY plane
sketch2 = body.newObject("Sketcher::SketchObject", "Sketch001")
sketch2.AttachmentSupport = (doc.getObject("XY_Plane"), [""])
sketch2.MapMode = "FlatFace"
sketch2.AttachmentOffset = App.Placement(Vector(0, 0, 30.085862), App.Rotation())
sketch2.addGeometry(Part.LineSegment(Vector(-3.042752, 95, 0), Vector(16.957248, 115, 0)), False)
sketch2.addGeometry(Part.LineSegment(Vector(16.957248, 115, 0), Vector(-3.042752, 115, 0)), False)
sketch2.addGeometry(Part.LineSegment(Vector(-3.042752, 115, 0), Vector(-3.042752, 95, 0)), False)
sketch2.addConstraint(Sketcher.Constraint("Coincident", 0, 2, 1, 1))
sketch2.addConstraint(Sketcher.Constraint("Coincident", 1, 2, 2, 1))
sketch2.addConstraint(Sketcher.Constraint("Coincident", 2, 2, 0, 1))
sketch2.addConstraint(Sketcher.Constraint("Horizontal", 1))
sketch2.addConstraint(Sketcher.Constraint("Vertical", 2))
sketch2.addConstraint(Sketcher.Constraint("Equal", 1, 2))
sketch2.addConstraint(Sketcher.Constraint("DistanceX", 1, 2, 1, 1, Q("20 mm")))
sketch2.addConstraint(Sketcher.Constraint("DistanceY", -1, 1, 0, 2, Q("115 mm")))
sketch2.addConstraint(Sketcher.Constraint("DistanceX", -1, 1, 0, 2, Q("16.957248 mm")))
pocket1 = body.newObject("PartDesign::Pocket", "Pocket")
pocket1.Profile = sketch2
pocket1.Type = "ThroughAll"

doc.recompute()
